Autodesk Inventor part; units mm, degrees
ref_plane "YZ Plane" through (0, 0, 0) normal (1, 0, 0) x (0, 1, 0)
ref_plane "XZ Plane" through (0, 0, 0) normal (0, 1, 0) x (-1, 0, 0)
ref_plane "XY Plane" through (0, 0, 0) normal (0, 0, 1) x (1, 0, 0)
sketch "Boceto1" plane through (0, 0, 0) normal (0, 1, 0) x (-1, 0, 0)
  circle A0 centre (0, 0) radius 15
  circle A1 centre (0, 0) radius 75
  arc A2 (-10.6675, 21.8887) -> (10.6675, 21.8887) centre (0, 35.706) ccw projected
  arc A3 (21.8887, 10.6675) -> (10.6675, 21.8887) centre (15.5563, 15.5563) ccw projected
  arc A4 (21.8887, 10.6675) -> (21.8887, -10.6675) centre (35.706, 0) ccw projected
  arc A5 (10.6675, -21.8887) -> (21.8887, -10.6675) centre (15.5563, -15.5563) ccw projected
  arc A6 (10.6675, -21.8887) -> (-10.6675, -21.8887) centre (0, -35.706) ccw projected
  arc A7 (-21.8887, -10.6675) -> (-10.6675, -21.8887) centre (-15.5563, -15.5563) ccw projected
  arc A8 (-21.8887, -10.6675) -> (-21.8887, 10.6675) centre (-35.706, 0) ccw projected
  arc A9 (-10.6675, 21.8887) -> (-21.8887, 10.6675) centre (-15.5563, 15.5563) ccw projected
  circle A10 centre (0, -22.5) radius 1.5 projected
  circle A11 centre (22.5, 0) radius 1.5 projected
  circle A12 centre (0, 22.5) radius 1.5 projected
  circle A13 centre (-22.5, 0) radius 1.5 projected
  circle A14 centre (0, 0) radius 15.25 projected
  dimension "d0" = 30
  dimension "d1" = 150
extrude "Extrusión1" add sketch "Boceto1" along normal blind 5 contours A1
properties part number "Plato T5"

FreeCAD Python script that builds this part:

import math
import FreeCAD as App
import Part
import Sketcher

V = App.Vector

doc = App.newDocument("Part")
params = doc.addObject("Spreadsheet::Sheet", "Params")
for row, (alias, value) in enumerate([
    ("sketch1_diameter", "150 mm"),
    ("sketch1_diameter2", "3 mm"),
    ("sketch1_radius", "8 mm"),
    ("pad1_length", "5 mm"),
], start=1):
    params.set(f"A{row}", alias)
    params.set(f"B{row}", "=" + value)
    params.setAlias(f"B{row}", alias)

body = doc.addObject("PartDesign::Body", "Body")

# Sketch on XZ plane
sketch1 = doc.addObject("Sketcher::SketchObject", "Sketch")
body.addObject(sketch1)
sketch1.AttachmentSupport = (doc.XZ_Plane, [""])
sketch1.MapMode = "FlatFace"
sketch1.addGeometry(Part.Circle(V(0, 0, 0), V(0, 0, 1), 75), False)
sketch1.addGeometry(Part.Circle(V(0, -22.5, 0), V(0, 0, 1), 1.5), False)
sketch1.addGeometry(Part.Circle(V(22.5, 0, 0), V(0, 0, 1), 1.5), False)
sketch1.addGeometry(Part.ArcOfCircle(Part.Circle(V(15.5563, 15.5563, 0), V(0, 0, 1), 7.999978), math.radians(-37.669202), math.radians(127.669202)), False)
sketch1.addGeometry(Part.ArcOfCircle(Part.Circle(V(0, 35.706, 0), V(0, 0, 1), 17.45604), math.radians(-127.669555), math.radians(-52.330445)), False)
sketch1.addGeometry(Part.ArcOfCircle(Part.Circle(V(-15.5563, 15.5563, 0), V(0, 0, 1), 7.999978), math.radians(52.330798), math.radians(217.669202)), False)
sketch1.addGeometry(Part.ArcOfCircle(Part.Circle(V(-35.706, 0, 0), V(0, 0, 1), 17.45604), math.radians(-37.669555), math.radians(37.669555)), False)
sketch1.addGeometry(Part.ArcOfCircle(Part.Circle(V(-15.5563, -15.5563, 0), V(0, 0, 1), 7.999978), math.radians(142.330798), math.radians(307.669202)), False)
sketch1.addGeometry(Part.ArcOfCircle(Part.Circle(V(0, -35.706, 0), V(0, 0, 1), 17.45604), math.radians(52.330445), math.radians(127.669555)), False)
sketch1.addGeometry(Part.ArcOfCircle(Part.Circle(V(15.5563, -15.5563, 0), V(0, 0, 1), 7.999978), math.radians(-127.669202), math.radians(37.669202)), False)
sketch1.addGeometry(Part.ArcOfCircle(Part.Circle(V(35.706, 0, 0), V(0, 0, 1), 17.45604), math.radians(142.330445), math.radians(217.669555)), False)
sketch1.addGeometry(Part.Circle(V(-22.5, 0, 0), V(0, 0, 1), 1.5), False)
sketch1.addGeometry(Part.Circle(V(0, 22.5, 0), V(0, 0, 1), 1.5), False)
sketch1.addConstraint(Sketcher.Constraint("Tangent", 3, 2, 4, 2))
sketch1.addConstraint(Sketcher.Constraint("Tangent", 4, 1, 5, 1))
sketch1.addConstraint(Sketcher.Constraint("Tangent", 5, 2, 6, 2))
sketch1.addConstraint(Sketcher.Constraint("Tangent", 6, 1, 7, 1))
sketch1.addConstraint(Sketcher.Constraint("Tangent", 7, 2, 8, 2))
sketch1.addConstraint(Sketcher.Constraint("Tangent", 8, 1, 9, 1))
sketch1.addConstraint(Sketcher.Constraint("Tangent", 9, 2, 10, 2))
sketch1.addConstraint(Sketcher.Constraint("Tangent", 10, 1, 3, 1))
sketch1.addConstraint(Sketcher.Constraint("Coincident", 0, 3, -1, 1))
sketch1.addConstraint(Sketcher.Constraint("Equal", 1, 2))
sketch1.addConstraint(Sketcher.Constraint("Equal", 3, 5))
sketch1.addConstraint(Sketcher.Constraint("Equal", 4, 6))
sketch1.addConstraint(Sketcher.Constraint("Equal", 5, 7))
sketch1.addConstraint(Sketcher.Constraint("Equal", 6, 8))
sketch1.addConstraint(Sketcher.Constraint("Equal", 7, 9))
sketch1.addConstraint(Sketcher.Constraint("Equal", 8, 10))
sketch1.addConstraint(Sketcher.Constraint("Equal", 2, 11))
sketch1.addConstraint(Sketcher.Constraint("Equal", 11, 12))
sketch1.addConstraint(Sketcher.Constraint("Symmetric", 3, 3, 7, 3, -1, 1))
sketch1.addConstraint(Sketcher.Constraint("Symmetric", 5, 3, 9, 3, -1, 1))
sketch1.addConstraint(Sketcher.Constraint("Symmetric", 2, 3, 11, 3, -1, 1))
sketch1.addConstraint(Sketcher.Constraint("Symmetric", 1, 3, 12, 3, -1, 1))
sketch1.addConstraint(Sketcher.Constraint("Symmetric", 3, 3, 5, 3, -2))
sketch1.addConstraint(Sketcher.Constraint("PointOnObject", 1, 3, -2))
sketch1.addConstraint(Sketcher.Constraint("PointOnObject", 2, 3, -1))
sketch1.addConstraint(Sketcher.Constraint("Diameter", 0, 150.0))
sketch1.addConstraint(Sketcher.Constraint("Diameter", 1, 3.0))
sketch1.addConstraint(Sketcher.Constraint("Radius", 3, 8.0))
sketch1.addConstraint(Sketcher.Constraint("Radius", 4, 17.456))
sketch1.addConstraint(Sketcher.Constraint("DistanceY", 1, 3, -1, 1, 22.5))
sketch1.addConstraint(Sketcher.Constraint("DistanceX", -1, 1, 2, 3, 22.5))
sketch1.addConstraint(Sketcher.Constraint("DistanceY", -1, 1, 4, 3, 35.706))
sketch1.addConstraint(Sketcher.Constraint("DistanceX", 6, 3, -1, 1, 35.706))
sketch1.setExpression("Constraints[25]", "Params.sketch1_diameter")
sketch1.setExpression("Constraints[26]", "Params.sketch1_diameter2")
sketch1.setExpression("Constraints[27]", "Params.sketch1_radius")
pad1 = doc.addObject("PartDesign::Pad", "Pad")
body.addObject(pad1)
pad1.Profile = sketch1
pad1.setExpression("Length", "Params.pad1_length")
pad1.Reversed = True

doc.recompute()
